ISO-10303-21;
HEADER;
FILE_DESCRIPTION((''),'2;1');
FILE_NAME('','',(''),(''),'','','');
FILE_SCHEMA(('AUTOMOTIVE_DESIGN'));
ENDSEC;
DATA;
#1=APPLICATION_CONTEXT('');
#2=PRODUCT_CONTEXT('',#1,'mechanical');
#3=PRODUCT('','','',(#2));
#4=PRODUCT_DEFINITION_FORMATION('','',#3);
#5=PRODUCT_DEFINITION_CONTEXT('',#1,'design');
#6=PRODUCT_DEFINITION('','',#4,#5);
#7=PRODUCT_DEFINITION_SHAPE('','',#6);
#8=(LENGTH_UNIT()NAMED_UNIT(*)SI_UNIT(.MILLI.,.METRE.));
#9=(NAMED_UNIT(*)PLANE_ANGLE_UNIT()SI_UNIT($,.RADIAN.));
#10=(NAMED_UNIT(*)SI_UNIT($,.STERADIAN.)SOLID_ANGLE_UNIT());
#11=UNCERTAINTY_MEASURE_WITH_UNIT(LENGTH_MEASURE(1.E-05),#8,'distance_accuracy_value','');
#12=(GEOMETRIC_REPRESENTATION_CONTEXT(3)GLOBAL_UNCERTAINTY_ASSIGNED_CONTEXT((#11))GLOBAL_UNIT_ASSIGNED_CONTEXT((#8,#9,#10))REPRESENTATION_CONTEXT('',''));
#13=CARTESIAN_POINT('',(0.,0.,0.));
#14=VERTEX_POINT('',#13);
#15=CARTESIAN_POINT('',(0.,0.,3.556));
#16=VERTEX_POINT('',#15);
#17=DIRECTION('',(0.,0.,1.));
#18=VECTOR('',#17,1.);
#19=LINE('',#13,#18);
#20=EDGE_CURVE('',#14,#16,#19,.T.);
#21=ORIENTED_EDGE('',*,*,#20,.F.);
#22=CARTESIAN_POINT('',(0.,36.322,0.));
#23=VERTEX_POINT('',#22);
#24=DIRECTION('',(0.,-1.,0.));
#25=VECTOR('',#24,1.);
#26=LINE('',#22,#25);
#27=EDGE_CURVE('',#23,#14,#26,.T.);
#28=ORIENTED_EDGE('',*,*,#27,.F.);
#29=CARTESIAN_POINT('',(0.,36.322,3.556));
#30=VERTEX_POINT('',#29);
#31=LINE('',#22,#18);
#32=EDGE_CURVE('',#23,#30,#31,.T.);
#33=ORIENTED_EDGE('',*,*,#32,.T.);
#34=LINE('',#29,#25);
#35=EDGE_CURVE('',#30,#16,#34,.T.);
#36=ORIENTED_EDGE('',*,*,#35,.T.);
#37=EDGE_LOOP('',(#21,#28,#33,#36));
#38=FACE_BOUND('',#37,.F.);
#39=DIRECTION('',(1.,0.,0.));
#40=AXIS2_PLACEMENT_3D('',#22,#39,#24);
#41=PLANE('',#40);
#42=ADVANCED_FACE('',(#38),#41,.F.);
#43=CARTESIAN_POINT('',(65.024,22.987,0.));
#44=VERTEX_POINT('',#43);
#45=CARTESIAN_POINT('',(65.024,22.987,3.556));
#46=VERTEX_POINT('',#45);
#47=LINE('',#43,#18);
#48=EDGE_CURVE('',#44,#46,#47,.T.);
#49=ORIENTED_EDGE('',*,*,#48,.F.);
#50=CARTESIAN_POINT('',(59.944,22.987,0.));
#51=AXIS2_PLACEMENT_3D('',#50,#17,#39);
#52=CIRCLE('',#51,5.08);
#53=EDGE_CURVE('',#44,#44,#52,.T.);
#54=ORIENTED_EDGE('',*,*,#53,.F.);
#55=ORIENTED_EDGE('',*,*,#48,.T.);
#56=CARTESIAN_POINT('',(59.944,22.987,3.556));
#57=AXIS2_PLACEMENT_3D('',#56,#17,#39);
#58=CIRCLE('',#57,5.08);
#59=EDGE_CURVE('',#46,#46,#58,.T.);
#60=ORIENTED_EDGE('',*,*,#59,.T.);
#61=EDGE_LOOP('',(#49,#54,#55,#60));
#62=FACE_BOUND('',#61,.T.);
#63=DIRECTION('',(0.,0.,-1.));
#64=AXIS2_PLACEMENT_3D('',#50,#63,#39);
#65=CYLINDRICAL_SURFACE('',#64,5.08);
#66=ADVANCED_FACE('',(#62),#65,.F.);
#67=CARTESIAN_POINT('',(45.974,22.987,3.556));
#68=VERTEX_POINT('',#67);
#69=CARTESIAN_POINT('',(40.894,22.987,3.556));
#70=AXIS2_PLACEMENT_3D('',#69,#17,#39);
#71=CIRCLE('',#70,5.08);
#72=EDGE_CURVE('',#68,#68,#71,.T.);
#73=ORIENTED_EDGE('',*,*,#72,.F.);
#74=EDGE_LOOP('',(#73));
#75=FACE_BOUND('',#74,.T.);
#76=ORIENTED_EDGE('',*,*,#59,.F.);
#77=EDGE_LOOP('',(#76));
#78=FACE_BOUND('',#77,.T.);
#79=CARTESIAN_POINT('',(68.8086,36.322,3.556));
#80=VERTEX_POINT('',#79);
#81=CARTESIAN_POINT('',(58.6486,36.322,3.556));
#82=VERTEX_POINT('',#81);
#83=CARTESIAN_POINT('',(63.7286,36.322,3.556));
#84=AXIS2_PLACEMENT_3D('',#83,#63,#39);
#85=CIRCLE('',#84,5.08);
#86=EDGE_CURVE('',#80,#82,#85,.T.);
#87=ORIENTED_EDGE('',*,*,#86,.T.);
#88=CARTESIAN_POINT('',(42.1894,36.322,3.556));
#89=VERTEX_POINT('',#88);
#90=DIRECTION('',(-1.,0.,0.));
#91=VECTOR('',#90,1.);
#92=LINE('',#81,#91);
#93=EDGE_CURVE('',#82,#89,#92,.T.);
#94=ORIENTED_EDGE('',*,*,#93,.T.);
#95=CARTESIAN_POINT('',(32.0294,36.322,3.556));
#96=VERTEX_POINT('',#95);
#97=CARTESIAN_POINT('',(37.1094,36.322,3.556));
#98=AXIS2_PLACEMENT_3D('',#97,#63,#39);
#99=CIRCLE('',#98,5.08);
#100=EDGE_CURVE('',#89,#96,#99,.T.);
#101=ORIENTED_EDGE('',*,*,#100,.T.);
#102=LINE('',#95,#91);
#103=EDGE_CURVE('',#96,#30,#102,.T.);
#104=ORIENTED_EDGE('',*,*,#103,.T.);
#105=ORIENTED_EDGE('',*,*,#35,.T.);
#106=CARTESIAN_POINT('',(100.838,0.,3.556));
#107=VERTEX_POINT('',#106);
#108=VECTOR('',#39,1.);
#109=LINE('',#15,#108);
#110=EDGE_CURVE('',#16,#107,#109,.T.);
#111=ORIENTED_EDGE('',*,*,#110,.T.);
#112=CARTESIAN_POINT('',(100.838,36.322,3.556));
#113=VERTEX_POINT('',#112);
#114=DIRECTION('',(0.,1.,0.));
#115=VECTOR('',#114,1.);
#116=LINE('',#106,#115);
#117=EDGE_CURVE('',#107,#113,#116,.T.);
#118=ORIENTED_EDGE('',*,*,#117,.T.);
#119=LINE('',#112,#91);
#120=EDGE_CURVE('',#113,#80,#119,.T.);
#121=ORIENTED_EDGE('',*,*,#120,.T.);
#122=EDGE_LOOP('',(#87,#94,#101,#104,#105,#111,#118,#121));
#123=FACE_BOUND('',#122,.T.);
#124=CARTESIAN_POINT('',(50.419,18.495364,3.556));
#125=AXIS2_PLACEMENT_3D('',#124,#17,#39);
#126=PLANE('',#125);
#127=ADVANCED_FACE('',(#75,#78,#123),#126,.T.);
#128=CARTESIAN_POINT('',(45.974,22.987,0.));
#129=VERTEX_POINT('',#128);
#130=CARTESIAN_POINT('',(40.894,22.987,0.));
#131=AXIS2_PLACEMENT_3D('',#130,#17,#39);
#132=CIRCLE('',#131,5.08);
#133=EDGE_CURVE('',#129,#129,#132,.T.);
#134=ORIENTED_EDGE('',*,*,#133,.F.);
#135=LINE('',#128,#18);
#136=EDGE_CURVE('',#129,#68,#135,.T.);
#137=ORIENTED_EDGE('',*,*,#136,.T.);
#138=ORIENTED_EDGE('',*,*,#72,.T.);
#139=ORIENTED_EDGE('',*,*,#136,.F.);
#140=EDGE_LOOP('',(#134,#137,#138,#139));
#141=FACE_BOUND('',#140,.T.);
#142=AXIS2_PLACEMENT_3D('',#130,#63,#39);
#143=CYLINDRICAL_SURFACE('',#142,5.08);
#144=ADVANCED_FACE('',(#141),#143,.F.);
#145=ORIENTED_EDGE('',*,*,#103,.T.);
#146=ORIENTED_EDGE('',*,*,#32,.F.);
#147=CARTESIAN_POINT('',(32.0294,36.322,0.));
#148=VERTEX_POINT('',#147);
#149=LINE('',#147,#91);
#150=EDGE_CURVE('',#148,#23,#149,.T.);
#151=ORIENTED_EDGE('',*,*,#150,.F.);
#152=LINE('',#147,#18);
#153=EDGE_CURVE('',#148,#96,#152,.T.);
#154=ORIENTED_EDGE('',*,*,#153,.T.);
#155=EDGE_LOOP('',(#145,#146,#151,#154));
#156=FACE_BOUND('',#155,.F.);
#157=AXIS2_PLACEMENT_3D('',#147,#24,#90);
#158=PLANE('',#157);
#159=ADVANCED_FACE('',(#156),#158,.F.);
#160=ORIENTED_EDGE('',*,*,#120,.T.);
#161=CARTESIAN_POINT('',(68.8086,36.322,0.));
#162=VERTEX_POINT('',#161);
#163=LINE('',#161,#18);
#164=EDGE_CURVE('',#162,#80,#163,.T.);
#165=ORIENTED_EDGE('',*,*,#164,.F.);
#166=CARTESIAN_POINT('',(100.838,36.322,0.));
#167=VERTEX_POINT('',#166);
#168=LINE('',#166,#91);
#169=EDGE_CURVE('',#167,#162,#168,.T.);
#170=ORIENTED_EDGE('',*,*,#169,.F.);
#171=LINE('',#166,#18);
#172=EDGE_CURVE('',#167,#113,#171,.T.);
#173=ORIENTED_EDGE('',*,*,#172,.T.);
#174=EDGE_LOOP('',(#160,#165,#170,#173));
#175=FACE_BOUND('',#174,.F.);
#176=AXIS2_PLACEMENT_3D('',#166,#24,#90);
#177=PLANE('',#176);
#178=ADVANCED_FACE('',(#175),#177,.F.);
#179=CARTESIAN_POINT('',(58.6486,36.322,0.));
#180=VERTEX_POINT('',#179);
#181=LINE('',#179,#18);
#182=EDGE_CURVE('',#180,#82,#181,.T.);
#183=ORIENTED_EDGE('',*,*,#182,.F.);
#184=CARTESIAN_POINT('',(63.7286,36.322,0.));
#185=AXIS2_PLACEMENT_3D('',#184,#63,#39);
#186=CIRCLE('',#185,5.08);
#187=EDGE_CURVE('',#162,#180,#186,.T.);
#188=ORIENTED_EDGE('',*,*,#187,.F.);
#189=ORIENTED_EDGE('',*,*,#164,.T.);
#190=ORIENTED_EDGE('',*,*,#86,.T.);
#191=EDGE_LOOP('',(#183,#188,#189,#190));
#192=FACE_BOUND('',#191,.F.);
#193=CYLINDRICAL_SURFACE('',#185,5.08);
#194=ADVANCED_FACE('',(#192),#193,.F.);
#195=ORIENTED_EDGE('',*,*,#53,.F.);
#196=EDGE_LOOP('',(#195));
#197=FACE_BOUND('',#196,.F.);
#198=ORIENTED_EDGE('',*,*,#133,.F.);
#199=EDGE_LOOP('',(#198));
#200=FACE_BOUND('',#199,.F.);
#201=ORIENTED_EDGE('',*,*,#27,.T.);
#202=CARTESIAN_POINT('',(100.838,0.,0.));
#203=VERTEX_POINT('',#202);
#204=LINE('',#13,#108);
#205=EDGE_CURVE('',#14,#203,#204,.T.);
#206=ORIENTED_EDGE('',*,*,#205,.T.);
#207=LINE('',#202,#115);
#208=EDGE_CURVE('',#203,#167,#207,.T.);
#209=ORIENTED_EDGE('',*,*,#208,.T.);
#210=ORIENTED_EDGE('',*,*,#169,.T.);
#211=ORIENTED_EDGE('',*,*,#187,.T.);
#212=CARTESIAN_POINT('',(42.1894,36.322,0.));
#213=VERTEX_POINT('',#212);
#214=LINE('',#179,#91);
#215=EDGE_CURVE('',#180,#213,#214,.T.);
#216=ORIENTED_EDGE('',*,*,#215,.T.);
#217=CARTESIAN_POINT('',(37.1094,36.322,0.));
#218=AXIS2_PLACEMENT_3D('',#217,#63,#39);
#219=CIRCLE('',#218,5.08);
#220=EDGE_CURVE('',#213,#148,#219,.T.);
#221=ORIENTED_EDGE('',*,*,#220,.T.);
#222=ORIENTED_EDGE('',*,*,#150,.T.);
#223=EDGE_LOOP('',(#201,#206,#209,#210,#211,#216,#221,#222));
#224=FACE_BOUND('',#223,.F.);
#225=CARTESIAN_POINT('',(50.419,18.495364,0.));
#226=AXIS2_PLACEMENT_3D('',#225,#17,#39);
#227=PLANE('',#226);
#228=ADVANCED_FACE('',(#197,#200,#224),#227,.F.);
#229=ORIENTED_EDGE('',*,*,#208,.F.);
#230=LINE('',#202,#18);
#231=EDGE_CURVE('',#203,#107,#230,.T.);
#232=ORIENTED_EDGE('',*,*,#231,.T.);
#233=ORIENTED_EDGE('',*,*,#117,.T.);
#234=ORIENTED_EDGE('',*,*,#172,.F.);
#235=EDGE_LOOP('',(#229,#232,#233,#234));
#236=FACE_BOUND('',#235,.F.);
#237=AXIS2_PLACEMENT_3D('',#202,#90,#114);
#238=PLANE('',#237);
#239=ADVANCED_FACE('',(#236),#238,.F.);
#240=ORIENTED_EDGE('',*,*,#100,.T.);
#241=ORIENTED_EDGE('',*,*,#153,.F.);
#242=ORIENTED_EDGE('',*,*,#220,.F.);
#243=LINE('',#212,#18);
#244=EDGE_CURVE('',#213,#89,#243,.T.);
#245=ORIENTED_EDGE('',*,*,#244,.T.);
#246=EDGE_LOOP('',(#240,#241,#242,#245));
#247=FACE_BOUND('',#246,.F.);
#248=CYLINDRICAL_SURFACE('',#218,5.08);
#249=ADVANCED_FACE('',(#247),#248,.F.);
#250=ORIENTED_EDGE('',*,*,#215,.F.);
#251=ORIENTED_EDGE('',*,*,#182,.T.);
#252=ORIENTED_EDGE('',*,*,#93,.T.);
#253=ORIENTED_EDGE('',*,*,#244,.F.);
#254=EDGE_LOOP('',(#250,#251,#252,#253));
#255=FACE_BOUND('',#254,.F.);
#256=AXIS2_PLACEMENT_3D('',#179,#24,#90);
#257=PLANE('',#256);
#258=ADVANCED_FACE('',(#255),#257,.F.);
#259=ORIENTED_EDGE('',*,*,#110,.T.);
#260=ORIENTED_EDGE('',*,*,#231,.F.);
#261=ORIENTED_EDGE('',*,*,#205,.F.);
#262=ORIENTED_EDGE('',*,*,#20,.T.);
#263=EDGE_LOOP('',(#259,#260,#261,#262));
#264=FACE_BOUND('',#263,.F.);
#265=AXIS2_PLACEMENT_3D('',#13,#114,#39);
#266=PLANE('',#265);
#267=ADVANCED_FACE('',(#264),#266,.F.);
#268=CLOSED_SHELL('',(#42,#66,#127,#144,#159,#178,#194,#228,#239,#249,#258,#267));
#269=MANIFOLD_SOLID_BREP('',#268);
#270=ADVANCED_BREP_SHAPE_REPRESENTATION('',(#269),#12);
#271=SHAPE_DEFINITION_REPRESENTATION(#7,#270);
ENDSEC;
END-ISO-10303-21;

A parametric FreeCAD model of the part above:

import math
import FreeCAD as App
import Part
import Sketcher
Q = App.Units.Quantity

doc = App.newDocument("Part")
body = doc.addObject("PartDesign::Body", "Body")

# Sketch on XY plane
sketch1 = doc.addObject("Sketcher::SketchObject", "Sketch")
body.addObject(sketch1)
sketch1.AttachmentSupport = (doc.XY_Plane, [""])
sketch1.MapMode = "FlatFace"
sketch1.addGeometry(Part.LineSegment(App.Vector(0, 36, 0), App.Vector(0, 0, 0)), False)
sketch1.addGeometry(Part.LineSegment(App.Vector(0, 0, 0), App.Vector(101, 0, 0)), False)
sketch1.addGeometry(Part.LineSegment(App.Vector(101, 0, 0), App.Vector(101, 36, 0)), False)
sketch1.addGeometry(Part.LineSegment(App.Vector(101, 36, 0), App.Vector(69, 36, 0)), False)
sketch1.addGeometry(Part.ArcOfCircle(Part.Circle(App.Vector(64, 36, 0), App.Vector(0, 0, 1), 5), math.radians(180), math.radians(360)), False)
sketch1.addGeometry(Part.LineSegment(App.Vector(59, 36, 0), App.Vector(42, 36, 0)), False)
sketch1.addGeometry(Part.ArcOfCircle(Part.Circle(App.Vector(37, 36, 0), App.Vector(0, 0, 1), 5), math.radians(180), math.radians(360)), False)
sketch1.addGeometry(Part.LineSegment(App.Vector(32, 36, 0), App.Vector(0, 36, 0)), False)
sketch1.addGeometry(Part.Circle(App.Vector(41, 23, 0), App.Vector(0, 0, 1), 5), False)
sketch1.addGeometry(Part.Circle(App.Vector(60, 23, 0), App.Vector(0, 0, 1), 5), False)
sketch1.addConstraint(Sketcher.Constraint("Coincident", 0, 2, 1, 1))
sketch1.addConstraint(Sketcher.Constraint("Coincident", 1, 2, 2, 1))
sketch1.addConstraint(Sketcher.Constraint("Coincident", 2, 2, 3, 1))
sketch1.addConstraint(Sketcher.Constraint("Coincident", 3, 2, 4, 2))
sketch1.addConstraint(Sketcher.Constraint("Coincident", 4, 1, 5, 1))
sketch1.addConstraint(Sketcher.Constraint("Coincident", 5, 2, 6, 2))
sketch1.addConstraint(Sketcher.Constraint("Coincident", 6, 1, 7, 1))
sketch1.addConstraint(Sketcher.Constraint("Coincident", 7, 2, 0, 1))
sketch1.addConstraint(Sketcher.Constraint("Vertical", 0))
sketch1.addConstraint(Sketcher.Constraint("Horizontal", 1))
sketch1.addConstraint(Sketcher.Constraint("Vertical", 2))
sketch1.addConstraint(Sketcher.Constraint("Horizontal", 3))
sketch1.addConstraint(Sketcher.Constraint("Horizontal", 5))
sketch1.addConstraint(Sketcher.Constraint("Horizontal", 7))
sketch1.addConstraint(Sketcher.Constraint("Coincident", 0, 2, -1, 1))
sketch1.addConstraint(Sketcher.Constraint("Equal", 4, 6))
sketch1.addConstraint(Sketcher.Constraint("Equal", 6, 8))
sketch1.addConstraint(Sketcher.Constraint("Equal", 8, 9))
sketch1.addConstraint(Sketcher.Constraint("Horizontal", 4, 3, 6, 3))
sketch1.addConstraint(Sketcher.Constraint("Horizontal", 8, 3, 9, 3))
sketch1.addConstraint(Sketcher.Constraint("Horizontal", 6, 3, 2, 2))
sketch1.addConstraint(Sketcher.Constraint("Horizontal", 3, 2, 4, 1))
sketch1.addConstraint(Sketcher.Constraint("Horizontal", 5, 2, 6, 1))
sketch1.addConstraint(Sketcher.Constraint("Equal", 3, 7))
sketch1.addConstraint(Sketcher.Constraint("Diameter", 8, Q("0.4 in")))
sketch1.addConstraint(Sketcher.Constraint("DistanceX", 1, 1, 1, 2, Q("3.97 in")))
sketch1.addConstraint(Sketcher.Constraint("DistanceY", 0, 2, 0, 1, Q("1.43 in")))
sketch1.addConstraint(Sketcher.Constraint("DistanceX", 3, 2, 3, 1, Q("1.261 in")))
sketch1.addConstraint(Sketcher.Constraint("DistanceX", -1, 1, 8, 3, Q("1.61 in")))
sketch1.addConstraint(Sketcher.Constraint("DistanceX", -1, 1, 9, 3, Q("2.36 in")))
sketch1.addConstraint(Sketcher.Constraint("DistanceY", -1, 1, 8, 3, Q("0.905 in")))
pad1 = doc.addObject("PartDesign::Pad", "Pad")
body.addObject(pad1)
pad1.Profile = sketch1
pad1.Length = Q("0.14 in")

doc.recompute()
